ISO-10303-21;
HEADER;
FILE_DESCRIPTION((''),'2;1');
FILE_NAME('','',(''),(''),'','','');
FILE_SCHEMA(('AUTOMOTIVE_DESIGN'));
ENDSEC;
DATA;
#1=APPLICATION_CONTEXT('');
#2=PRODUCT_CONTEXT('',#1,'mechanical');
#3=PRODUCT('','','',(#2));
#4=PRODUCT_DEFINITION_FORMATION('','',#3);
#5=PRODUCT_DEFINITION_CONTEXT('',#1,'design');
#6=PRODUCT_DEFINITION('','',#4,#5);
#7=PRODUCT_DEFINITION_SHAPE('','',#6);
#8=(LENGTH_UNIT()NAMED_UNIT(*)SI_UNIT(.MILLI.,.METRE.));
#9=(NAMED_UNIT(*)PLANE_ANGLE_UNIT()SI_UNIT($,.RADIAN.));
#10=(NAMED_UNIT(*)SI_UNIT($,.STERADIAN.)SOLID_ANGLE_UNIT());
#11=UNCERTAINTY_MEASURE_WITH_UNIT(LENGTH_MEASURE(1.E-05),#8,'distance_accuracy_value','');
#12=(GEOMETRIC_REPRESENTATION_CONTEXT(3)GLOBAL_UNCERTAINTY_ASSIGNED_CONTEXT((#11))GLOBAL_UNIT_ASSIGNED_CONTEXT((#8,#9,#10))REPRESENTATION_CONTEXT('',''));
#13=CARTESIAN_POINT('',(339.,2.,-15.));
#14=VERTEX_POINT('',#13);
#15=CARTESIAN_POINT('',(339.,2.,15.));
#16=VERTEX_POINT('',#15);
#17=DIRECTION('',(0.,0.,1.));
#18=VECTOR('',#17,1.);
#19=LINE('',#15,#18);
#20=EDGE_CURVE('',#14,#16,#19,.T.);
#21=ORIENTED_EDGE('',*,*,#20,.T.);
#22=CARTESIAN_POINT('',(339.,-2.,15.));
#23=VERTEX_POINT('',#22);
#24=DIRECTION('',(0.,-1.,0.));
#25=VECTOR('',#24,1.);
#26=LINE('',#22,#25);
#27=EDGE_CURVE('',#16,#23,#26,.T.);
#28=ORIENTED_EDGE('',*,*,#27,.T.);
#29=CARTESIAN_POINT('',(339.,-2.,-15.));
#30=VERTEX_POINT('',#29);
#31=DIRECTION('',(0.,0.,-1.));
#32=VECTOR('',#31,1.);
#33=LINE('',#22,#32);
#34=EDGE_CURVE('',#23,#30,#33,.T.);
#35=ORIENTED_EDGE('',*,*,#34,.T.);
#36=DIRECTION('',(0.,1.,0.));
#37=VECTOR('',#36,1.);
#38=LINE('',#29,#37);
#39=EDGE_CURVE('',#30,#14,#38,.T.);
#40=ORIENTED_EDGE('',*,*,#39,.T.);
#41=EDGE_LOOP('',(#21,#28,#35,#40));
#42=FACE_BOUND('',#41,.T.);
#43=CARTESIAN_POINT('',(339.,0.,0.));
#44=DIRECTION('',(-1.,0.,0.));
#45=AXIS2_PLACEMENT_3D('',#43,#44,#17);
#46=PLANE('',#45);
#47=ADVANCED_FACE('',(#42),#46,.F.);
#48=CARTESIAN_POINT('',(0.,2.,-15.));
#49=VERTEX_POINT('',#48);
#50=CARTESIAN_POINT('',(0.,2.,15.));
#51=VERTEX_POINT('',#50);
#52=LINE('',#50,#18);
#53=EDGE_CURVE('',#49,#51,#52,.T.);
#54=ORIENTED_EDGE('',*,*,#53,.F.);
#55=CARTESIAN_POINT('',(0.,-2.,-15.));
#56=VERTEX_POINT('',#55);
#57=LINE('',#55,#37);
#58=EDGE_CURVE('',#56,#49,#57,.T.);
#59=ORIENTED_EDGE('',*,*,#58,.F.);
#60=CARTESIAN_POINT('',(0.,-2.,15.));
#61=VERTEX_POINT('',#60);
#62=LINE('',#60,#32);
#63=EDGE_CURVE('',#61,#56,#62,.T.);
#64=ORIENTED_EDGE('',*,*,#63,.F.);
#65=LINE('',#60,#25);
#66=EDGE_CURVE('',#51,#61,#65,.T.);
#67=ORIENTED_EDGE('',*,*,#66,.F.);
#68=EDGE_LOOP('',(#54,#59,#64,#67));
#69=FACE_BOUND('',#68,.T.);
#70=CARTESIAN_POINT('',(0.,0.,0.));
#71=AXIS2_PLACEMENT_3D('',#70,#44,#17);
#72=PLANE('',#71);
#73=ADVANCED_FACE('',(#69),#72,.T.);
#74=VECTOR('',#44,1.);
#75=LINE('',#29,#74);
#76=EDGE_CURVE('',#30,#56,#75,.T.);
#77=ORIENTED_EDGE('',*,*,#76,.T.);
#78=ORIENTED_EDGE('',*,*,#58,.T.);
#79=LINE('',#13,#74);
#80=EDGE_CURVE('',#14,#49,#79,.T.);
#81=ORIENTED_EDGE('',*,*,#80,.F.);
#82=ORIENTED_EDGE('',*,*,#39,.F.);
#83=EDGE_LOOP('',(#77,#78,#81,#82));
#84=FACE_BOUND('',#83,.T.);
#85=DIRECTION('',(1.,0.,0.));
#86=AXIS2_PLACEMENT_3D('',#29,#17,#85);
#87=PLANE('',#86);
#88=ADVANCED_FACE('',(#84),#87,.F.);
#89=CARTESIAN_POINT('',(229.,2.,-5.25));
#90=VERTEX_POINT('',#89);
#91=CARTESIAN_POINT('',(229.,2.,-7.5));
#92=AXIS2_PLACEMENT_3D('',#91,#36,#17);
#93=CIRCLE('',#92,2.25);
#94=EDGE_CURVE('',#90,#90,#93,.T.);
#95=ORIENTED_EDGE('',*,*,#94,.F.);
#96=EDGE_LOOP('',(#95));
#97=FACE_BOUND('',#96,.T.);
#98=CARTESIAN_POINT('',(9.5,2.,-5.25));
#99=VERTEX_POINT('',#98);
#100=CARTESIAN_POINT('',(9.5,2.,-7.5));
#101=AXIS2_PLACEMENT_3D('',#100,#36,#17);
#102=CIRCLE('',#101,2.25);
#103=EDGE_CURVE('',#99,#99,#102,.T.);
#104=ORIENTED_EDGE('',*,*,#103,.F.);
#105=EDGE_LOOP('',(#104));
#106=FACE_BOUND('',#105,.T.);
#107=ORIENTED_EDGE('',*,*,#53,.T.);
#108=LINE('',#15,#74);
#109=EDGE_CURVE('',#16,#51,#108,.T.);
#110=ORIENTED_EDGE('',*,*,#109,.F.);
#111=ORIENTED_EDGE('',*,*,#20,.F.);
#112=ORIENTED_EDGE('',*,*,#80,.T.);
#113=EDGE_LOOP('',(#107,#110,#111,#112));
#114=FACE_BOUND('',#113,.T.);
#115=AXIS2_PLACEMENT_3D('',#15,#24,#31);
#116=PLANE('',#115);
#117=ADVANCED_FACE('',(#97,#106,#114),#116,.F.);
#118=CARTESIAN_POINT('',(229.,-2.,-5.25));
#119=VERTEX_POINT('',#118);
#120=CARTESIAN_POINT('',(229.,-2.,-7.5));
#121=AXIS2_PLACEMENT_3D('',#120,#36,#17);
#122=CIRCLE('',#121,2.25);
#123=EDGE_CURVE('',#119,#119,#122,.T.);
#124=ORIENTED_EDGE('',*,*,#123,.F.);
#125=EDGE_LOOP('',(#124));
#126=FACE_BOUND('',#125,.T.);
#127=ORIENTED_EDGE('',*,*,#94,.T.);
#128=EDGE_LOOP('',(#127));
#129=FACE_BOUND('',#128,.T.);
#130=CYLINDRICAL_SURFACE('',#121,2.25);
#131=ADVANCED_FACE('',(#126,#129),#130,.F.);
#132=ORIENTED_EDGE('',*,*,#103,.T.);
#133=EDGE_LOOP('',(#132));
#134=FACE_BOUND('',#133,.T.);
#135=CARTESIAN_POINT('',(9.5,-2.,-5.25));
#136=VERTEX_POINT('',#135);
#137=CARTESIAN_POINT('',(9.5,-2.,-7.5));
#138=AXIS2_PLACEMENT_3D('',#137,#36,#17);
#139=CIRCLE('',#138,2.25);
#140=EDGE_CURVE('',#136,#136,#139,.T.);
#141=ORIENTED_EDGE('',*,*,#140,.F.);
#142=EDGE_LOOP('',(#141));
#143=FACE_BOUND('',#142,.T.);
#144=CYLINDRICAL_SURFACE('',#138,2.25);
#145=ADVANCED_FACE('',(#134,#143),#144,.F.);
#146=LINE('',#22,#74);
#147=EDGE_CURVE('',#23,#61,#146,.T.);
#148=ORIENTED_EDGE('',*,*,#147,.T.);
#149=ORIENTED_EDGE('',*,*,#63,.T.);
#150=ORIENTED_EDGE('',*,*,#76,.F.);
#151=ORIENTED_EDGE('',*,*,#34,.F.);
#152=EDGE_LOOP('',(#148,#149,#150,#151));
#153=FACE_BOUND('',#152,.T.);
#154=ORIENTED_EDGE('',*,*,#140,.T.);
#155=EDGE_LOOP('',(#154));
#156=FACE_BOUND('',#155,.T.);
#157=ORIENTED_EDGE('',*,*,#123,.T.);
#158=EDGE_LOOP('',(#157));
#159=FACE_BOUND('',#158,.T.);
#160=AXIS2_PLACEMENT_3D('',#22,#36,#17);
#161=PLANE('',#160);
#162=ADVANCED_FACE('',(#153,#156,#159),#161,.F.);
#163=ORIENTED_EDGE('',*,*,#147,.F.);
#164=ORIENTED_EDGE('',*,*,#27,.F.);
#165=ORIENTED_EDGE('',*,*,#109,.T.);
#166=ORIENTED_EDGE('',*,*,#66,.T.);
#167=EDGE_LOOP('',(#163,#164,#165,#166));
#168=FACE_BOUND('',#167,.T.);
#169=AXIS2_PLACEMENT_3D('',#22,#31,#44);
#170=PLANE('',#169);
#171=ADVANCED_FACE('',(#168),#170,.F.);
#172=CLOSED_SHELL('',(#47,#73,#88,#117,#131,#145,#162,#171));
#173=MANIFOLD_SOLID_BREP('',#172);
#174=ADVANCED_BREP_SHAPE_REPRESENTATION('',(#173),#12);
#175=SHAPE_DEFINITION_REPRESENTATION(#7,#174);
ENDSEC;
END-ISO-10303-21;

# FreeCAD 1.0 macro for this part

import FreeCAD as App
import Part
import Sketcher
Q = App.Units.Quantity

doc = App.newDocument("Part")
body = doc.addObject("PartDesign::Body", "Body")

sketch1 = body.newObject("Sketcher::SketchObject", "Sketch")
sketch1.AttachmentSupport = (doc.getObject("YZ_Plane"), [""])
sketch1.MapMode = "FlatFace"
sketch1.addGeometry(Part.LineSegment(App.Vector(2, 15, 0), App.Vector(-2, 15, 0)), False)
sketch1.addGeometry(Part.LineSegment(App.Vector(-2, 15, 0), App.Vector(-2, -15, 0)), False)
sketch1.addGeometry(Part.LineSegment(App.Vector(-2, -15, 0), App.Vector(2, -15, 0)), False)
sketch1.addGeometry(Part.LineSegment(App.Vector(2, -15, 0), App.Vector(2, 15, 0)), False)
sketch1.addConstraint(Sketcher.Constraint("Coincident", 0, 2, 1, 1))
sketch1.addConstraint(Sketcher.Constraint("Coincident", 1, 2, 2, 1))
sketch1.addConstraint(Sketcher.Constraint("Coincident", 2, 2, 3, 1))
sketch1.addConstraint(Sketcher.Constraint("Coincident", 3, 2, 0, 1))
sketch1.addConstraint(Sketcher.Constraint("Horizontal", 0))
sketch1.addConstraint(Sketcher.Constraint("Vertical", 1))
sketch1.addConstraint(Sketcher.Constraint("Horizontal", 2))
sketch1.addConstraint(Sketcher.Constraint("Vertical", 3))
sketch1.addConstraint(Sketcher.Constraint("Symmetric", 0, 2, 2, 2, -1, 1))
sketch1.addConstraint(Sketcher.Constraint("DistanceX", 0, 2, 0, 1, Q("4 mm")))
sketch1.addConstraint(Sketcher.Constraint("DistanceY", 1, 2, 1, 1, Q("30 mm")))
pad1 = body.newObject("PartDesign::Pad", "Pad")
pad1.Profile = sketch1
pad1.Length = 339

sketch2 = body.newObject("Sketcher::SketchObject", "Sketch001")
sketch2.AttachmentSupport = (doc.getObject("XZ_Plane"), [""])
sketch2.MapMode = "FlatFace"
sketch2.AttachmentOffset = App.Placement(App.Vector(0, 0, -2), App.Rotation())
sketch2.addGeometry(Part.Circle(App.Vector(9.5, -7.5, 0), App.Vector(0, 0, 1), 2.25), False)
sketch2.addGeometry(Part.Circle(App.Vector(229, -7.5, 0), App.Vector(0, 0, 1), 2.25), False)
sketch2.addConstraint(Sketcher.Constraint("Equal", 0, 1))
sketch2.addConstraint(Sketcher.Constraint("Horizontal", 0, 3, 1, 3))
sketch2.addConstraint(Sketcher.Constraint("Diameter", 0, Q("4.5 mm")))
sketch2.addConstraint(Sketcher.Constraint("DistanceX", -1, 1, 1, 3, Q("229 mm")))
sketch2.addConstraint(Sketcher.Constraint("DistanceX", -1, 1, 0, 3, Q("9.5 mm")))
sketch2.addConstraint(Sketcher.Constraint("DistanceY", 0, 3, -1, 1, Q("7.5 mm")))
pocket1 = body.newObject("PartDesign::Pocket", "Pocket")
pocket1.Profile = sketch2
pocket1.Type = "ThroughAll"
pocket1.Reversed = True

doc.recompute()
